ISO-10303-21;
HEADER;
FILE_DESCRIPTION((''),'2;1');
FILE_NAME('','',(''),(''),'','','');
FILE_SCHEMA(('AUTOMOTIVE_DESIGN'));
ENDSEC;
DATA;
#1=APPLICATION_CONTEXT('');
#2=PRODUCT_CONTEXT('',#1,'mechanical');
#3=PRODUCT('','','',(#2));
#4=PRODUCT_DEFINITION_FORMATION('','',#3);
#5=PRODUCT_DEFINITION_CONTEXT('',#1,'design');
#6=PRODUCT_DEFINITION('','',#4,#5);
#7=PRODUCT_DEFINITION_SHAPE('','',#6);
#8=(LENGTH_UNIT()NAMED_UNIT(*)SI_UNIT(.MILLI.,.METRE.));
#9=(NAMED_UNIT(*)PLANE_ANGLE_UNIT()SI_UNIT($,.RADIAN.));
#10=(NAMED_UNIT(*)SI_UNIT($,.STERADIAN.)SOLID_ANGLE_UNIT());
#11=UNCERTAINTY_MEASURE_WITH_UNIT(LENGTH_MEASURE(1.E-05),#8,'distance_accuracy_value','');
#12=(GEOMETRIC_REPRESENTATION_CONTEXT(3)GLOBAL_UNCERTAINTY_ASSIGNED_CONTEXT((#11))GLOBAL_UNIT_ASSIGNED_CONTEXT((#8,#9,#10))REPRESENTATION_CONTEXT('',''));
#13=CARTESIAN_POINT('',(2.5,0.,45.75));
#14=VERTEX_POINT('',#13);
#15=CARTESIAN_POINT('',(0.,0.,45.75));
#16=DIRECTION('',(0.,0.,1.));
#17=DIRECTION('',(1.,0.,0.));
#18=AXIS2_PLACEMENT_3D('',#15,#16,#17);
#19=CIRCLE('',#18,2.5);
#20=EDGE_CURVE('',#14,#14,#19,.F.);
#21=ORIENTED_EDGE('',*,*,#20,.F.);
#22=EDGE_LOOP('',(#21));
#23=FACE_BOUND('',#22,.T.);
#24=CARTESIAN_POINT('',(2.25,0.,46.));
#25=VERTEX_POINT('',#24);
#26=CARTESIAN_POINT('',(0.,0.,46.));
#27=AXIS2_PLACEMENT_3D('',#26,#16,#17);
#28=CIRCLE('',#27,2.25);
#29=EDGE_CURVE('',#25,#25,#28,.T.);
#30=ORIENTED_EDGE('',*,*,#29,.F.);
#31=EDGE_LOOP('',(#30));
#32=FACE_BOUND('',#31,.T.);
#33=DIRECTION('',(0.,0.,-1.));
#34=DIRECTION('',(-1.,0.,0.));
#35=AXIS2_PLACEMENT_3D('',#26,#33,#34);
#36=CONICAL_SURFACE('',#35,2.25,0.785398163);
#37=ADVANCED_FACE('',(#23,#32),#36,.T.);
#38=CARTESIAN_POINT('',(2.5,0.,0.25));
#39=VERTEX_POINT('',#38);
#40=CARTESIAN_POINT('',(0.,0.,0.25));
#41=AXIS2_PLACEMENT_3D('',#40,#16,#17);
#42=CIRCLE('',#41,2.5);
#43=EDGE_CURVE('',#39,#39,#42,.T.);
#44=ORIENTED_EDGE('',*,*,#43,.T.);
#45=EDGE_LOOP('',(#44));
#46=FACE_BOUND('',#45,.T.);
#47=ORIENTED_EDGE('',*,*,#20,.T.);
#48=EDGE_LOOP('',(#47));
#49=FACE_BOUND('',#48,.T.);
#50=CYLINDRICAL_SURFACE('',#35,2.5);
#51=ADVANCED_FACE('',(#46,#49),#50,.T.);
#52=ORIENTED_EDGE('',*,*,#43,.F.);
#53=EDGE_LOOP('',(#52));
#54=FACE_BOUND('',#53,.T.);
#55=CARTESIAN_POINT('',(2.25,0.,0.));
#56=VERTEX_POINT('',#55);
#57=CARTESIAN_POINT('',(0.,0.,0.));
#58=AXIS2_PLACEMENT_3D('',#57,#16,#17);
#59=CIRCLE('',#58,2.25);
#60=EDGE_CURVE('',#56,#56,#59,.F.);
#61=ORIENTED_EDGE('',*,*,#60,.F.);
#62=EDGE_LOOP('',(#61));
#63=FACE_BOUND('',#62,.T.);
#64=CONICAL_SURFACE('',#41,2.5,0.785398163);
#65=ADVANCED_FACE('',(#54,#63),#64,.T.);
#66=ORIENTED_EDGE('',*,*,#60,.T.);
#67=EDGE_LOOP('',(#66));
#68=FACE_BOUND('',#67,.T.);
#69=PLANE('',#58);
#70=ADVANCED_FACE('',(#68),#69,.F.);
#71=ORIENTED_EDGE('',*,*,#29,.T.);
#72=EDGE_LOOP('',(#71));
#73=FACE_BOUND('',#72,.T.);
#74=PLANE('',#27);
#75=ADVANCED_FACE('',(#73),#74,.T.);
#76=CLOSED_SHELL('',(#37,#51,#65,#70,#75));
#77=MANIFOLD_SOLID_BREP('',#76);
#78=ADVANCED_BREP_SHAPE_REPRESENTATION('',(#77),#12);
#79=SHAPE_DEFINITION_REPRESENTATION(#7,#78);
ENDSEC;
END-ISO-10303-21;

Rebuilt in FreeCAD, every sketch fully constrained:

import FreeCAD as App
import Part
import Sketcher


def edges_at(feature, points):
    """Names of the edges that pass closest to the given points."""
    edges = feature.Shape.Edges
    near = lambda p: min(range(len(edges)), key=lambda i: edges[i].distToShape(Part.Vertex(*p))[0])
    return sorted({f"Edge{near(p) + 1}" for p in points})

doc = App.newDocument("Part")
body = doc.addObject("PartDesign::Body", "Body")

sketch1 = doc.addObject("Sketcher::SketchObject", "Sketch")
body.addObject(sketch1)
sketch1.AttachmentSupport = (doc.XY_Plane, [""])
sketch1.MapMode = "FlatFace"
sketch1.addGeometry(Part.Circle(App.Vector(0, 0, 0), App.Vector(0, 0, 1), 2.5), False)
sketch1.addConstraint(Sketcher.Constraint("Coincident", 0, 3, -1, 1))
sketch1.addConstraint(Sketcher.Constraint("Diameter", 0, 5.0))
pad1 = doc.addObject("PartDesign::Pad", "Pad")
body.addObject(pad1)
pad1.Profile = sketch1
pad1.Length = 46
doc.recompute()

chamfer = doc.addObject("PartDesign::Chamfer", "Chamfer")
body.addObject(chamfer)
chamfer.Base = (pad1, edges_at(pad1, [(-2.5, 0, 0), (-2.5, 0, 46)]))
chamfer.Size = 0.25

doc.recompute()
